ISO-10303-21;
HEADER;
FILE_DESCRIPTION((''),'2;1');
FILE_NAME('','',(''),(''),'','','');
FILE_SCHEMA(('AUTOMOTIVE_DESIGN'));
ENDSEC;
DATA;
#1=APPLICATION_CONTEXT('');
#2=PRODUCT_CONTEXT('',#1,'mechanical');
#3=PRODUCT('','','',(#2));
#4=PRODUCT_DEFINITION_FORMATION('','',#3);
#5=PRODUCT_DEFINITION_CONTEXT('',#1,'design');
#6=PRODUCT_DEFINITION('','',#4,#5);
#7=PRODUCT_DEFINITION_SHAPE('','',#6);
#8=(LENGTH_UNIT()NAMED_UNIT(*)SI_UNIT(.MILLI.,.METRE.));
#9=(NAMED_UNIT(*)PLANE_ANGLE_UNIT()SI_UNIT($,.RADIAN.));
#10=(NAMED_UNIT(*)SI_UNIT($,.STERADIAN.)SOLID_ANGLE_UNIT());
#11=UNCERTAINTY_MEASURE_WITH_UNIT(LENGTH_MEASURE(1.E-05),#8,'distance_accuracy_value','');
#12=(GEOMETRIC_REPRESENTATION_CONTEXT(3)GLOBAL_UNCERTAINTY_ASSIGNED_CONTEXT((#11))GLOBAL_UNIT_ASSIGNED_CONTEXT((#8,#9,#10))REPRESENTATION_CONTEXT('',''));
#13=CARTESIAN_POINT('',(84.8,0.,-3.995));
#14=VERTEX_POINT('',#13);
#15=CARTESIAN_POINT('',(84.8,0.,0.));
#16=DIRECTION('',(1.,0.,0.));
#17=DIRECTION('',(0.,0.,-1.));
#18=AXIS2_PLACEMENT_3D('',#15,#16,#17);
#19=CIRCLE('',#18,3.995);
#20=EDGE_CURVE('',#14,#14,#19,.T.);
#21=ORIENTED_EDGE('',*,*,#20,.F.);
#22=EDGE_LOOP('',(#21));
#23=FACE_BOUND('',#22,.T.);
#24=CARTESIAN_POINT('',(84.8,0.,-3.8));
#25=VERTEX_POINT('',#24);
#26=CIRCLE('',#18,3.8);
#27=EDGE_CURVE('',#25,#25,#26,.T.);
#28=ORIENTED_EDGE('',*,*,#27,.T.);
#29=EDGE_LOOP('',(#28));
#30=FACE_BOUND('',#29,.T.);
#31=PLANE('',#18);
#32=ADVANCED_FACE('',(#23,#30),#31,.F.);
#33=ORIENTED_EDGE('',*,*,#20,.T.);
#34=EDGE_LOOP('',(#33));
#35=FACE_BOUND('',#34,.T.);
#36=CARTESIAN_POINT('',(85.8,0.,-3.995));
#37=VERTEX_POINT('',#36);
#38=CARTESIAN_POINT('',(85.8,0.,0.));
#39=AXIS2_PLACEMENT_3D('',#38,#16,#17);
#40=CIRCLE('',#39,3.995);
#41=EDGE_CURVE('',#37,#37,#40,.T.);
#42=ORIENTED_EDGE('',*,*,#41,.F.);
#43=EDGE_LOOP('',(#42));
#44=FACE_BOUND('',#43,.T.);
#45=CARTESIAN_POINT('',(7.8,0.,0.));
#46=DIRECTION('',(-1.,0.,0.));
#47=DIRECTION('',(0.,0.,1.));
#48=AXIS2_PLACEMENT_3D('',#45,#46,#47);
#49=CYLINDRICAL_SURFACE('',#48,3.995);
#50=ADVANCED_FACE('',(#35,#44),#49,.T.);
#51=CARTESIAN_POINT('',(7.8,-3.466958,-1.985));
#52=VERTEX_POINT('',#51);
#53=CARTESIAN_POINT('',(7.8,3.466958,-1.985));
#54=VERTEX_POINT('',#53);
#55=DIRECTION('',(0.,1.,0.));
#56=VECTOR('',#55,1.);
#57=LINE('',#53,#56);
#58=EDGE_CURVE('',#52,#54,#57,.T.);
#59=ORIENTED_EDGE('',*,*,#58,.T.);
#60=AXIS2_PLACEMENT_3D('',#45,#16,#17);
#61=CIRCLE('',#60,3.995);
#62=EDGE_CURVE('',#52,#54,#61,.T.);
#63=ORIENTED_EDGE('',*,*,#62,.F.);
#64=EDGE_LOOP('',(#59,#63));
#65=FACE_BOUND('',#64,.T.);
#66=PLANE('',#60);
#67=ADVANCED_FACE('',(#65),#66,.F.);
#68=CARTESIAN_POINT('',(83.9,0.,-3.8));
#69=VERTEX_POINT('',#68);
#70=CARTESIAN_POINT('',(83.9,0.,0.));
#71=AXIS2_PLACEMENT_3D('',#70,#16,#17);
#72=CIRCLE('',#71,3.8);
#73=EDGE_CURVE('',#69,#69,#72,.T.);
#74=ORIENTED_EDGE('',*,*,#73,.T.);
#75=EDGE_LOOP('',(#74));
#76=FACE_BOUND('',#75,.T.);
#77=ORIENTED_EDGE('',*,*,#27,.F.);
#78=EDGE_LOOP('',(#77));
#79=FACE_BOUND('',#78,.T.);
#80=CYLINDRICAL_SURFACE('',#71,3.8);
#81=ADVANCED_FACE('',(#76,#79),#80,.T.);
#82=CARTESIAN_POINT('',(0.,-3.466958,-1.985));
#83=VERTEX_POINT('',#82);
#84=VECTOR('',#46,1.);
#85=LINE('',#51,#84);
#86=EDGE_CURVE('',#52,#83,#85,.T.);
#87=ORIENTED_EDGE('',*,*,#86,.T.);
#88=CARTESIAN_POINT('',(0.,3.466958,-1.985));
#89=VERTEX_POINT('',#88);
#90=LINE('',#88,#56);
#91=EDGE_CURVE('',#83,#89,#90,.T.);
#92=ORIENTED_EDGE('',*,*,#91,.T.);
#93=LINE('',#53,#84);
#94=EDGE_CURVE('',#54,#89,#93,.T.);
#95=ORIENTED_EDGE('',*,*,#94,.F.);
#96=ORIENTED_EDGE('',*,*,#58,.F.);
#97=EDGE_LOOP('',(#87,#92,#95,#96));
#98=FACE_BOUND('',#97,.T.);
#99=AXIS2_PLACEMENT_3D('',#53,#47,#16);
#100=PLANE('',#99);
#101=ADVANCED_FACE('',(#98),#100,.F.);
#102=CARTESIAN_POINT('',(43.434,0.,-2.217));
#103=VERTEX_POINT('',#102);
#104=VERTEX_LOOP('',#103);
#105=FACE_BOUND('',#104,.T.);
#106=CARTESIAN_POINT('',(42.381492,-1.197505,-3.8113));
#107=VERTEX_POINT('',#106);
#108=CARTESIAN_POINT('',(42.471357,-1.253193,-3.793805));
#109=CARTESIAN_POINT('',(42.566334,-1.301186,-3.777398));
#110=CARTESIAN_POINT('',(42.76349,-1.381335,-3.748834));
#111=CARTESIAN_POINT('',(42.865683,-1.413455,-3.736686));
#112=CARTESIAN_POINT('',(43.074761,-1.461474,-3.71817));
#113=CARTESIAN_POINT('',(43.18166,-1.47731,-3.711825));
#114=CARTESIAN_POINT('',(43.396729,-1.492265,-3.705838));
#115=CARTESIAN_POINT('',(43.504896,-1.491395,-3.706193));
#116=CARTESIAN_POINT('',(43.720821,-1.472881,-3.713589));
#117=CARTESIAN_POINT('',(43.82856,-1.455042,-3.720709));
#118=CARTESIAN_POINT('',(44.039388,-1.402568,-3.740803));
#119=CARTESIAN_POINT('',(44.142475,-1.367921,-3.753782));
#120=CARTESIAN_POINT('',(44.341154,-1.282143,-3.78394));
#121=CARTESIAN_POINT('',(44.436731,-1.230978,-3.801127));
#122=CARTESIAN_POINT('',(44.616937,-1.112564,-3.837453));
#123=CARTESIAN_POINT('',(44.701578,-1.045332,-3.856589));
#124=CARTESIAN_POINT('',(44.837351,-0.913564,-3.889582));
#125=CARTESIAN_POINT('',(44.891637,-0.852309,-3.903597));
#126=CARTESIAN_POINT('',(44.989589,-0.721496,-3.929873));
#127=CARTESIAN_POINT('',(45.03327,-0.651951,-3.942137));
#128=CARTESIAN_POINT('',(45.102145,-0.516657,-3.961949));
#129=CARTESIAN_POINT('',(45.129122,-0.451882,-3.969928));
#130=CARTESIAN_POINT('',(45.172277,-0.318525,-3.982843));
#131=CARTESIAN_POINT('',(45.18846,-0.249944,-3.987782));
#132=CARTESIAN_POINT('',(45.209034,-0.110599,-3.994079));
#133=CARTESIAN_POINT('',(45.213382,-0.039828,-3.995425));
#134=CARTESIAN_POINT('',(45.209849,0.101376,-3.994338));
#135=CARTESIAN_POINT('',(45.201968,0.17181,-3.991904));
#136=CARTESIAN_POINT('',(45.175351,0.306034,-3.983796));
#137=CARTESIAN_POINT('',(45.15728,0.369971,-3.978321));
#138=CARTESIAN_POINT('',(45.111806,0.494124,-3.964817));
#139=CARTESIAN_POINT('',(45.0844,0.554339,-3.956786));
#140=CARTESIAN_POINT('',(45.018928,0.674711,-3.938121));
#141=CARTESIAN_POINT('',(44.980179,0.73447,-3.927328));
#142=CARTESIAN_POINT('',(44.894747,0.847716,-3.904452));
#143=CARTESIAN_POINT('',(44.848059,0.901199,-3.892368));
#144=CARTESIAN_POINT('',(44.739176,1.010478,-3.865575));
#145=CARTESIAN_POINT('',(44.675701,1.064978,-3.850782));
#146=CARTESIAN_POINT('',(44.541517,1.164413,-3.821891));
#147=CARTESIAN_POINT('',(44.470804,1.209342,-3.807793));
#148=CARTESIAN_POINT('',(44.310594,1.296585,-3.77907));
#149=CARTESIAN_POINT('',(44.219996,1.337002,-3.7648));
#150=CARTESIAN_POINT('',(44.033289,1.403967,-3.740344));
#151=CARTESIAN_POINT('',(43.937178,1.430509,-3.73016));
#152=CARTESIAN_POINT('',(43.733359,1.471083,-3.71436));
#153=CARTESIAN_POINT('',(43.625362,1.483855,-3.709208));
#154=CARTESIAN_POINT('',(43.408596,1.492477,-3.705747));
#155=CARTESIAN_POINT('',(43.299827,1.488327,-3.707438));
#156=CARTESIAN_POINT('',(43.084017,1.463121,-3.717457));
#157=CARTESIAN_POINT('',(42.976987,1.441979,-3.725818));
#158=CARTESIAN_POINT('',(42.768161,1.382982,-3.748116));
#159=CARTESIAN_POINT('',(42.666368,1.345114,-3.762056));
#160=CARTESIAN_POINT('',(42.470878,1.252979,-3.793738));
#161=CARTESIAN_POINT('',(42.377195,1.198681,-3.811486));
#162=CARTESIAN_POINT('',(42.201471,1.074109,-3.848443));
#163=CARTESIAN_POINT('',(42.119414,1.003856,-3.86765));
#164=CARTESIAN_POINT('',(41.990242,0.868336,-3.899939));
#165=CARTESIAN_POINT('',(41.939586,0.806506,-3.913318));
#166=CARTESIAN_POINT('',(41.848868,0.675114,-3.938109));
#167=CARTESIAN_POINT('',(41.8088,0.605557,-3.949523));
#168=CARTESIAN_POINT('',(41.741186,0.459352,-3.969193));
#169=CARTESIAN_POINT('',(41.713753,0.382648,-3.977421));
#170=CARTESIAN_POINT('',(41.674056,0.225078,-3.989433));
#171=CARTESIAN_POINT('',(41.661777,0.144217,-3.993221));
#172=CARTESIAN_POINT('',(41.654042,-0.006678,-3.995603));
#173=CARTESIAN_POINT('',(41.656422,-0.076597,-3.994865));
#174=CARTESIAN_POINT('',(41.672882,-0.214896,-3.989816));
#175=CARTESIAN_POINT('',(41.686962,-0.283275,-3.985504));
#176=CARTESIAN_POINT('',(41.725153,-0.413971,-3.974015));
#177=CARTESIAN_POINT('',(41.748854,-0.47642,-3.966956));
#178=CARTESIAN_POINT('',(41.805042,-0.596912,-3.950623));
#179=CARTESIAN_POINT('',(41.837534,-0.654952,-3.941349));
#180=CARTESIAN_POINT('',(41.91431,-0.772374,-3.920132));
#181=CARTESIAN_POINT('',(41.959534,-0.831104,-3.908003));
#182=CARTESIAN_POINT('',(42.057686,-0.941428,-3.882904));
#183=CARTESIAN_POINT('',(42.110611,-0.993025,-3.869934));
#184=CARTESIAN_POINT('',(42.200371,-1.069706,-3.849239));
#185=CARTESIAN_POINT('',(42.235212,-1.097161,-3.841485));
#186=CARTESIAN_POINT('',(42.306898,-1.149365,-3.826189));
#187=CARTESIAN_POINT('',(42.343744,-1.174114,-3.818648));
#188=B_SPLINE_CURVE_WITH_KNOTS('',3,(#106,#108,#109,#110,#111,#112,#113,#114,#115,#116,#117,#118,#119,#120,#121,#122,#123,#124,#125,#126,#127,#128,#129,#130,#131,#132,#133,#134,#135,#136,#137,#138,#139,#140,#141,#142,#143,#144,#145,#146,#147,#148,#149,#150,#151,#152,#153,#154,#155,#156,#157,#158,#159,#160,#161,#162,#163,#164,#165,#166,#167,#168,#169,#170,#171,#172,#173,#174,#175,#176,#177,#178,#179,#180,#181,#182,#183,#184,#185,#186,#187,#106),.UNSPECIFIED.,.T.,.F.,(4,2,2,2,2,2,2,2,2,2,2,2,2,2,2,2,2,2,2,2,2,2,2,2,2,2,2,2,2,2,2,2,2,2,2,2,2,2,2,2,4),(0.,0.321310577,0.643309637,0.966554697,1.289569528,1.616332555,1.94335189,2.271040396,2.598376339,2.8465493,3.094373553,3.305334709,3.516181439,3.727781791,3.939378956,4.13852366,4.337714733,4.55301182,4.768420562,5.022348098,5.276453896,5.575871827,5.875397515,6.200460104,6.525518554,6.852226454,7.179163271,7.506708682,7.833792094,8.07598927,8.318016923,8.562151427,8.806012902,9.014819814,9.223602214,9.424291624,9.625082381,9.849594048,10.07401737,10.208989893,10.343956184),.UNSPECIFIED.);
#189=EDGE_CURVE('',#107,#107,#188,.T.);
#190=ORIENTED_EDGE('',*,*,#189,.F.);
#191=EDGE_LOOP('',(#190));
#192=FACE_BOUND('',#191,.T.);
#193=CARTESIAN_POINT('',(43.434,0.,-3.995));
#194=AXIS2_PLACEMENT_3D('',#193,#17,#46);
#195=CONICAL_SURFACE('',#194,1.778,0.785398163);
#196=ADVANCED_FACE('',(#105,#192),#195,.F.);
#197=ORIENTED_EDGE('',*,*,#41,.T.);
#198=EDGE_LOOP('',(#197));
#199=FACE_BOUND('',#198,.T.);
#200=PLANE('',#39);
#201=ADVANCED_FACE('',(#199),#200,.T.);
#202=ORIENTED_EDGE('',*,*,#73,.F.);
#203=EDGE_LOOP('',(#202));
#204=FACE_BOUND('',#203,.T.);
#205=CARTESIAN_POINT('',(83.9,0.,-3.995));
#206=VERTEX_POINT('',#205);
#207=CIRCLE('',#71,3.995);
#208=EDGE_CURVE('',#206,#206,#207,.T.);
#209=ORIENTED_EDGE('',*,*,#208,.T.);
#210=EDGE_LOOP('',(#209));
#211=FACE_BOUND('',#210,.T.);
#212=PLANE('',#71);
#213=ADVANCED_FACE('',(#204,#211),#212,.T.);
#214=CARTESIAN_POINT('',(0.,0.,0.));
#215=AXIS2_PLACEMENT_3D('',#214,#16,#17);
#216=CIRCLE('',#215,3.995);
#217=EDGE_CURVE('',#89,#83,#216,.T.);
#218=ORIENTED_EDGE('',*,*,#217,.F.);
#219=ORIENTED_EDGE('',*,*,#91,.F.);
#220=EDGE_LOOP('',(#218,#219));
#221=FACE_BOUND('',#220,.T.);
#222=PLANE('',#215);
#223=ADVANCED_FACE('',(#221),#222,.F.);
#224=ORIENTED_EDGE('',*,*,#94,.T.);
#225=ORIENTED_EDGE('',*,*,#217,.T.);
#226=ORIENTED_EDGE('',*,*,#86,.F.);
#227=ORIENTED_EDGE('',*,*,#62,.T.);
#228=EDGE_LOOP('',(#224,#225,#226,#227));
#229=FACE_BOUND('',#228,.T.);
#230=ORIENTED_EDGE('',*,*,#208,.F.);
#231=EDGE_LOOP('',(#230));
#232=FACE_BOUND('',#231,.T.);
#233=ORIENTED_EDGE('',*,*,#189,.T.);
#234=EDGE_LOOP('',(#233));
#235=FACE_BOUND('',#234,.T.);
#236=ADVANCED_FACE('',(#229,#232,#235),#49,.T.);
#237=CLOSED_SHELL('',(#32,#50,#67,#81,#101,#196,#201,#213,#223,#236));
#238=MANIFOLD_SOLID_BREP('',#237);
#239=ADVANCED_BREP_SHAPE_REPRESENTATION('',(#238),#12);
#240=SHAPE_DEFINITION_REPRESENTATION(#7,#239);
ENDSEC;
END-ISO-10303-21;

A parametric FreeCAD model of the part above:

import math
import FreeCAD as App
import Part
import Sketcher

V = App.Vector


def add_polygon(sketch, points):
    """Adds a closed chain of lines whose ends are joined by coincident constraints."""
    first, n = sketch.GeometryCount, len(points)
    for a, b in zip(points, points[1:] + points[:1]):
        sketch.addGeometry(Part.LineSegment(App.Vector(*a, 0), App.Vector(*b, 0)), False)
    for i in range(n):
        sketch.addConstraint(Sketcher.Constraint("Coincident", first + i, 2, first + (i + 1) % n, 1))

doc = App.newDocument("Part")
body = doc.addObject("PartDesign::Body", "Body")

# Sketch on YZ plane
sketch1 = body.newObject("Sketcher::SketchObject", "Sketch")
sketch1.AttachmentSupport = (doc.getObject("YZ_Plane"), [""])
sketch1.MapMode = "FlatFace"
sketch1.addGeometry(Part.LineSegment(V(-3.5, -2, 0), V(3.5, -2, 0)), False)
sketch1.addGeometry(Part.ArcOfCircle(Part.Circle(V(0, 0, 0), V(0, 0, 1), 4), math.radians(-30), math.radians(210)), False)
sketch1.addConstraint(Sketcher.Constraint("Coincident", 0, 1, 1, 2))
sketch1.addConstraint(Sketcher.Constraint("Coincident", 1, 1, 0, 2))
sketch1.addConstraint(Sketcher.Constraint("Horizontal", 0))
sketch1.addConstraint(Sketcher.Constraint("Coincident", 1, 3, -1, 1))
sketch1.addConstraint(Sketcher.Constraint("Radius", 1, 3.995))
sketch1.addConstraint(Sketcher.Constraint("DistanceY", 0, 1, -1, 1, 1.985))
pad1 = body.newObject("PartDesign::Pad", "Pad")
pad1.Profile = sketch1
pad1.Length = 7.8

# Sketch on YZ plane
sketch2 = body.newObject("Sketcher::SketchObject", "Sketch001")
sketch2.AttachmentSupport = (doc.getObject("YZ_Plane"), [""])
sketch2.MapMode = "FlatFace"
sketch2.AttachmentOffset = App.Placement(V(0, 0, 7.8), App.Rotation())
sketch2.addGeometry(Part.Circle(V(0, 0, 0), V(0, 0, 1), 4), False)
sketch2.addConstraint(Sketcher.Constraint("Coincident", 0, 3, -1, 1))
sketch2.addConstraint(Sketcher.Constraint("Diameter", 0, 7.99))
pad2 = body.newObject("PartDesign::Pad", "Pad001")
pad2.Profile = sketch2
pad2.Length = 78

# Sketch on YZ plane
sketch3 = body.newObject("Sketcher::SketchObject", "Sketch002")
sketch3.AttachmentSupport = (doc.getObject("YZ_Plane"), [""])
sketch3.MapMode = "FlatFace"
sketch3.AttachmentOffset = App.Placement(V(0, 0, 84.8), App.Rotation())
sketch3.addGeometry(Part.Circle(V(0, 0, 0), V(0, 0, 1), 5), False)
sketch3.addGeometry(Part.Circle(V(0, 0, 0), V(0, 0, 1), 3.8), False)
sketch3.addConstraint(Sketcher.Constraint("Coincident", 0, 3, -1, 1))
sketch3.addConstraint(Sketcher.Constraint("Coincident", 1, 3, -1, 1))
sketch3.addConstraint(Sketcher.Constraint("Diameter", 0, 10.0))
sketch3.addConstraint(Sketcher.Constraint("Diameter", 1, 7.6))
pocket1 = body.newObject("PartDesign::Pocket", "Pocket")
pocket1.Profile = sketch3
pocket1.Length = 0.9

# Sketch on YZ plane
sketch4 = body.newObject("Sketcher::SketchObject", "Sketch003")
sketch4.AttachmentSupport = (doc.getObject("YZ_Plane"), [""])
sketch4.MapMode = "FlatFace"
sketch4.AttachmentOffset = App.Placement(V(0, 0, 43.434), App.Rotation())
add_polygon(sketch4, [(0, -4), (1.8, -4), (0, -2.2)])  # lines 0-2
sketch4.addConstraint(Sketcher.Constraint("Horizontal", 0))
sketch4.addConstraint(Sketcher.Constraint("Vertical", 2))
sketch4.addConstraint(Sketcher.Constraint("PointOnObject", 1, 2, -2))
sketch4.addConstraint(Sketcher.Constraint("Equal", 0, 2))
sketch4.addConstraint(Sketcher.Constraint("DistanceX", 0, 1, 0, 2, 1.778))
sketch4.addConstraint(Sketcher.Constraint("DistanceY", 0, 2, -1, 1, 3.995))
groove = body.newObject("PartDesign::Groove", "Groove")
groove.Profile = sketch4
groove.ReferenceAxis = (sketch4, ["V_Axis"])
groove.Angle = 360

doc.recompute()
